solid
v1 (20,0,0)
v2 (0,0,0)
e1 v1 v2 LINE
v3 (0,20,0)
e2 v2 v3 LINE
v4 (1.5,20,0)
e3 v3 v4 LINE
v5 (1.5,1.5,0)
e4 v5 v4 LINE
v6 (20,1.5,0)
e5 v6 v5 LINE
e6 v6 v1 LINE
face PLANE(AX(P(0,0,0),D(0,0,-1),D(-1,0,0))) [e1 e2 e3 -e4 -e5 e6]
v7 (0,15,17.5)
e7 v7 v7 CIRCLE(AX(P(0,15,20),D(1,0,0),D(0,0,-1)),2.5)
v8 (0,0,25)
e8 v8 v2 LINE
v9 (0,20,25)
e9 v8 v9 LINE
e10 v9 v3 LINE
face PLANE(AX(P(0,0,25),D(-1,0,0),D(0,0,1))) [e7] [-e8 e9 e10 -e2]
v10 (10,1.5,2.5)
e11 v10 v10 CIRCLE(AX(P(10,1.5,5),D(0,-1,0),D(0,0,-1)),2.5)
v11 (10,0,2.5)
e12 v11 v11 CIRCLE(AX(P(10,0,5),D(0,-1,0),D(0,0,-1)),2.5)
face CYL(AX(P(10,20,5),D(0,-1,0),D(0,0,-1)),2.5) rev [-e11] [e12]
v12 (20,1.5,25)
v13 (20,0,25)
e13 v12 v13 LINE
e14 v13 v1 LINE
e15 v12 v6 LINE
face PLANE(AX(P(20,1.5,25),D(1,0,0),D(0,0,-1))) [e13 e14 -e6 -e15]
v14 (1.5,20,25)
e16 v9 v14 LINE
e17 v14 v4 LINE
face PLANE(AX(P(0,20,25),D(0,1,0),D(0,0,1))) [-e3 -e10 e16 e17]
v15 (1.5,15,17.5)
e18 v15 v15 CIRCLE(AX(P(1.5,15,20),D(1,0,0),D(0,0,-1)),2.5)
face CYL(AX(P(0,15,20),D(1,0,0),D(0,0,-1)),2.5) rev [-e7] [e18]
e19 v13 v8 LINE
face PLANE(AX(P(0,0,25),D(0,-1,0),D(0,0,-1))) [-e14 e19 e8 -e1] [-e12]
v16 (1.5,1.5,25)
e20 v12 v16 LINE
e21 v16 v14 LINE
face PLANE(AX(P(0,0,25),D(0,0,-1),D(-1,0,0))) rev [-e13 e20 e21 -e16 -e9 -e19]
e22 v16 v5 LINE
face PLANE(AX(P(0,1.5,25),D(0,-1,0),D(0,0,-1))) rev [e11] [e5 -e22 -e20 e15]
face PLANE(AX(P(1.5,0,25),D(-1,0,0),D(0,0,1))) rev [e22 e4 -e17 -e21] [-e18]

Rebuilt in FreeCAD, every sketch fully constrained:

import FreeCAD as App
import Part
import Sketcher
Q = App.Units.Quantity

doc = App.newDocument("Part")
body = doc.addObject("PartDesign::Body", "Body")

# Sketch on XY plane
sketch1 = body.newObject("Sketcher::SketchObject", "Sketch")
sketch1.AttachmentSupport = (doc.getObject("XY_Plane"), [""])
sketch1.MapMode = "FlatFace"
sketch1.addGeometry([
    Part.LineSegment(App.Vector(0, 20, 0), App.Vector(0, 0, 0)),  # 0
    Part.LineSegment(App.Vector(0, 0, 0), App.Vector(20, 0, 0)),  # 1
    Part.LineSegment(App.Vector(20, 0, 0), App.Vector(20, 1.5, 0)),  # 2
    Part.LineSegment(App.Vector(20, 1.5, 0), App.Vector(1.5, 1.5, 0)),  # 3
    Part.LineSegment(App.Vector(1.5, 1.5, 0), App.Vector(1.5, 20, 0)),  # 4
    Part.LineSegment(App.Vector(1.5, 20, 0), App.Vector(0, 20, 0)),  # 5
], False)
sketch1.addConstraint([
    Sketcher.Constraint("Coincident", 0, 2, 1, 1),
    Sketcher.Constraint("Coincident", 1, 2, 2, 1),
    Sketcher.Constraint("Coincident", 2, 2, 3, 1),
    Sketcher.Constraint("Coincident", 3, 2, 4, 1),
    Sketcher.Constraint("Coincident", 4, 2, 5, 1),
    Sketcher.Constraint("Coincident", 5, 2, 0, 1),
    Sketcher.Constraint("Vertical", 0),
    Sketcher.Constraint("Horizontal", 1),
    Sketcher.Constraint("Vertical", 2),
    Sketcher.Constraint("Horizontal", 3),
    Sketcher.Constraint("Vertical", 4),
    Sketcher.Constraint("Horizontal", 5),
    Sketcher.Constraint("Coincident", 0, 2, -1, 1),
    Sketcher.Constraint("Equal", 1, 0),
    Sketcher.Constraint("Equal", 5, 2),
    Sketcher.Constraint("DistanceX", 1, 1, 1, 2, Q("20 mm")),
    Sketcher.Constraint("DistanceX", 3, 2, 3, 1, Q("18.5 mm")),
])
pad1 = body.newObject("PartDesign::Pad", "Pad")
pad1.Profile = sketch1
pad1.Length = 25

# Sketch on XZ plane
sketch2 = body.newObject("Sketcher::SketchObject", "Sketch001")
sketch2.AttachmentSupport = (doc.getObject("XZ_Plane"), [""])
sketch2.MapMode = "FlatFace"
sketch2.addGeometry(Part.Circle(App.Vector(10, 5, 0), App.Vector(0, 0, 1), 2.5), False)
sketch2.addConstraint([
    Sketcher.Constraint("Diameter", 0, Q("5 mm")),
    Sketcher.Constraint("DistanceX", -1, 1, 0, 3, Q("10 mm")),
    Sketcher.Constraint("DistanceY", -1, 1, 0, 3, Q("5 mm")),
])
pocket1 = body.newObject("PartDesign::Pocket", "Pocket")
pocket1.Profile = sketch2
pocket1.Type = "ThroughAll"

# Sketch on YZ plane
sketch3 = body.newObject("Sketcher::SketchObject", "Sketch002")
sketch3.AttachmentSupport = (doc.getObject("YZ_Plane"), [""])
sketch3.MapMode = "FlatFace"
sketch3.AttachmentOffset = App.Placement(App.Vector(0, 0, 1.5), App.Rotation())
sketch3.addGeometry(Part.Circle(App.Vector(15, 20, 0), App.Vector(0, 0, 1), 2.5), False)
sketch3.addConstraint([
    Sketcher.Constraint("Diameter", 0, Q("5 mm")),
    Sketcher.Constraint("DistanceX", -1, 1, 0, 3, Q("15 mm")),
    Sketcher.Constraint("DistanceY", -1, 1, 0, 3, Q("20 mm")),
])
pocket2 = body.newObject("PartDesign::Pocket", "Pocket001")
pocket2.Profile = sketch3
pocket2.Type = "ThroughAll"

doc.recompute()
